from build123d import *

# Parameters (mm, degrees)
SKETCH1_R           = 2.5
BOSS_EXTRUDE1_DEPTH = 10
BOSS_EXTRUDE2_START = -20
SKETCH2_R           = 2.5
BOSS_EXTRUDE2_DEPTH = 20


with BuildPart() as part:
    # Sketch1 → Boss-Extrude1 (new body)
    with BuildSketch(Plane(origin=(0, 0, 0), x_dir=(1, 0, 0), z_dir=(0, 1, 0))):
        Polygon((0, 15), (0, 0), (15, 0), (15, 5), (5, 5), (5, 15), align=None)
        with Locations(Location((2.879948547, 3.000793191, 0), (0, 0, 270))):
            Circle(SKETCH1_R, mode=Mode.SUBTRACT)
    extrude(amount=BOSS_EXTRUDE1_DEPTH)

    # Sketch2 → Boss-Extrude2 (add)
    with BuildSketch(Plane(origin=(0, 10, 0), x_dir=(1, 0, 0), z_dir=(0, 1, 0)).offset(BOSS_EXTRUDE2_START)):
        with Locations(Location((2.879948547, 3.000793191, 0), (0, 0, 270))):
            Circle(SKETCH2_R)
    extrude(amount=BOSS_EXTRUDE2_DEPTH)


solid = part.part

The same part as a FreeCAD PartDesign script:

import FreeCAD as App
import Part
import Sketcher
from FreeCAD import Vector
Q = App.Units.Quantity

doc = App.newDocument("Part")
body = doc.addObject("PartDesign::Body", "Body")

sketch1 = doc.addObject("Sketcher::SketchObject", "Sketch")
body.addObject(sketch1)
sketch1.AttachmentSupport = (doc.XZ_Plane, [""])
sketch1.MapMode = "FlatFace"
sketch1.addGeometry(Part.LineSegment(Vector(0, -15, 0), Vector(0, 0, 0)), False)
sketch1.addGeometry(Part.LineSegment(Vector(0, 0, 0), Vector(15, 0, 0)), False)
sketch1.addGeometry(Part.LineSegment(Vector(15, 0, 0), Vector(15, -5, 0)), False)
sketch1.addGeometry(Part.LineSegment(Vector(15, -5, 0), Vector(5, -5, 0)), False)
sketch1.addGeometry(Part.LineSegment(Vector(5, -5, 0), Vector(5, -15, 0)), False)
sketch1.addGeometry(Part.LineSegment(Vector(5, -15, 0), Vector(0, -15, 0)), False)
sketch1.addGeometry(Part.Circle(Vector(2.9, -3, 0), Vector(0, 0, 1), 2.5), False)
sketch1.addConstraint(Sketcher.Constraint("Coincident", 0, 2, 1, 1))
sketch1.addConstraint(Sketcher.Constraint("Coincident", 1, 2, 2, 1))
sketch1.addConstraint(Sketcher.Constraint("Coincident", 2, 2, 3, 1))
sketch1.addConstraint(Sketcher.Constraint("Coincident", 3, 2, 4, 1))
sketch1.addConstraint(Sketcher.Constraint("Coincident", 4, 2, 5, 1))
sketch1.addConstraint(Sketcher.Constraint("Coincident", 5, 2, 0, 1))
sketch1.addConstraint(Sketcher.Constraint("Vertical", 0))
sketch1.addConstraint(Sketcher.Constraint("Horizontal", 1))
sketch1.addConstraint(Sketcher.Constraint("Vertical", 2))
sketch1.addConstraint(Sketcher.Constraint("Horizontal", 3))
sketch1.addConstraint(Sketcher.Constraint("Vertical", 4))
sketch1.addConstraint(Sketcher.Constraint("Horizontal", 5))
sketch1.addConstraint(Sketcher.Constraint("Coincident", 0, 2, -1, 1))
sketch1.addConstraint(Sketcher.Constraint("Equal", 1, 0))
sketch1.addConstraint(Sketcher.Constraint("Equal", 5, 2))
sketch1.addConstraint(Sketcher.Constraint("Diameter", 6, Q("5 mm")))
sketch1.addConstraint(Sketcher.Constraint("DistanceX", 1, 1, 1, 2, Q("15 mm")))
sketch1.addConstraint(Sketcher.Constraint("DistanceX", 3, 2, 3, 1, Q("10 mm")))
sketch1.addConstraint(Sketcher.Constraint("DistanceX", -1, 1, 6, 3, Q("2.879949 mm")))
sketch1.addConstraint(Sketcher.Constraint("DistanceY", 6, 3, -1, 1, Q("3.000793 mm")))
pad1 = doc.addObject("PartDesign::Pad", "Pad")
body.addObject(pad1)
pad1.Profile = sketch1
pad1.Length = 10
pad1.Reversed = True

sketch2 = doc.addObject("Sketcher::SketchObject", "Sketch001")
body.addObject(sketch2)
sketch2.AttachmentSupport = (doc.XZ_Plane, [""])
sketch2.MapMode = "FlatFace"
sketch2.AttachmentOffset = App.Placement(Vector(0, 0, 10), App.Rotation())
sketch2.addGeometry(Part.Circle(Vector(2.9, -3, 0), Vector(0, 0, 1), 2.5), False)
sketch2.addConstraint(Sketcher.Constraint("Diameter", 0, Q("5 mm")))
sketch2.addConstraint(Sketcher.Constraint("DistanceX", -1, 1, 0, 3, Q("2.879949 mm")))
sketch2.addConstraint(Sketcher.Constraint("DistanceY", 0, 3, -1, 1, Q("3.000793 mm")))
pad2 = doc.addObject("PartDesign::Pad", "Pad001")
body.addObject(pad2)
pad2.Profile = sketch2
pad2.Length = 20
pad2.Reversed = True

doc.recompute()
